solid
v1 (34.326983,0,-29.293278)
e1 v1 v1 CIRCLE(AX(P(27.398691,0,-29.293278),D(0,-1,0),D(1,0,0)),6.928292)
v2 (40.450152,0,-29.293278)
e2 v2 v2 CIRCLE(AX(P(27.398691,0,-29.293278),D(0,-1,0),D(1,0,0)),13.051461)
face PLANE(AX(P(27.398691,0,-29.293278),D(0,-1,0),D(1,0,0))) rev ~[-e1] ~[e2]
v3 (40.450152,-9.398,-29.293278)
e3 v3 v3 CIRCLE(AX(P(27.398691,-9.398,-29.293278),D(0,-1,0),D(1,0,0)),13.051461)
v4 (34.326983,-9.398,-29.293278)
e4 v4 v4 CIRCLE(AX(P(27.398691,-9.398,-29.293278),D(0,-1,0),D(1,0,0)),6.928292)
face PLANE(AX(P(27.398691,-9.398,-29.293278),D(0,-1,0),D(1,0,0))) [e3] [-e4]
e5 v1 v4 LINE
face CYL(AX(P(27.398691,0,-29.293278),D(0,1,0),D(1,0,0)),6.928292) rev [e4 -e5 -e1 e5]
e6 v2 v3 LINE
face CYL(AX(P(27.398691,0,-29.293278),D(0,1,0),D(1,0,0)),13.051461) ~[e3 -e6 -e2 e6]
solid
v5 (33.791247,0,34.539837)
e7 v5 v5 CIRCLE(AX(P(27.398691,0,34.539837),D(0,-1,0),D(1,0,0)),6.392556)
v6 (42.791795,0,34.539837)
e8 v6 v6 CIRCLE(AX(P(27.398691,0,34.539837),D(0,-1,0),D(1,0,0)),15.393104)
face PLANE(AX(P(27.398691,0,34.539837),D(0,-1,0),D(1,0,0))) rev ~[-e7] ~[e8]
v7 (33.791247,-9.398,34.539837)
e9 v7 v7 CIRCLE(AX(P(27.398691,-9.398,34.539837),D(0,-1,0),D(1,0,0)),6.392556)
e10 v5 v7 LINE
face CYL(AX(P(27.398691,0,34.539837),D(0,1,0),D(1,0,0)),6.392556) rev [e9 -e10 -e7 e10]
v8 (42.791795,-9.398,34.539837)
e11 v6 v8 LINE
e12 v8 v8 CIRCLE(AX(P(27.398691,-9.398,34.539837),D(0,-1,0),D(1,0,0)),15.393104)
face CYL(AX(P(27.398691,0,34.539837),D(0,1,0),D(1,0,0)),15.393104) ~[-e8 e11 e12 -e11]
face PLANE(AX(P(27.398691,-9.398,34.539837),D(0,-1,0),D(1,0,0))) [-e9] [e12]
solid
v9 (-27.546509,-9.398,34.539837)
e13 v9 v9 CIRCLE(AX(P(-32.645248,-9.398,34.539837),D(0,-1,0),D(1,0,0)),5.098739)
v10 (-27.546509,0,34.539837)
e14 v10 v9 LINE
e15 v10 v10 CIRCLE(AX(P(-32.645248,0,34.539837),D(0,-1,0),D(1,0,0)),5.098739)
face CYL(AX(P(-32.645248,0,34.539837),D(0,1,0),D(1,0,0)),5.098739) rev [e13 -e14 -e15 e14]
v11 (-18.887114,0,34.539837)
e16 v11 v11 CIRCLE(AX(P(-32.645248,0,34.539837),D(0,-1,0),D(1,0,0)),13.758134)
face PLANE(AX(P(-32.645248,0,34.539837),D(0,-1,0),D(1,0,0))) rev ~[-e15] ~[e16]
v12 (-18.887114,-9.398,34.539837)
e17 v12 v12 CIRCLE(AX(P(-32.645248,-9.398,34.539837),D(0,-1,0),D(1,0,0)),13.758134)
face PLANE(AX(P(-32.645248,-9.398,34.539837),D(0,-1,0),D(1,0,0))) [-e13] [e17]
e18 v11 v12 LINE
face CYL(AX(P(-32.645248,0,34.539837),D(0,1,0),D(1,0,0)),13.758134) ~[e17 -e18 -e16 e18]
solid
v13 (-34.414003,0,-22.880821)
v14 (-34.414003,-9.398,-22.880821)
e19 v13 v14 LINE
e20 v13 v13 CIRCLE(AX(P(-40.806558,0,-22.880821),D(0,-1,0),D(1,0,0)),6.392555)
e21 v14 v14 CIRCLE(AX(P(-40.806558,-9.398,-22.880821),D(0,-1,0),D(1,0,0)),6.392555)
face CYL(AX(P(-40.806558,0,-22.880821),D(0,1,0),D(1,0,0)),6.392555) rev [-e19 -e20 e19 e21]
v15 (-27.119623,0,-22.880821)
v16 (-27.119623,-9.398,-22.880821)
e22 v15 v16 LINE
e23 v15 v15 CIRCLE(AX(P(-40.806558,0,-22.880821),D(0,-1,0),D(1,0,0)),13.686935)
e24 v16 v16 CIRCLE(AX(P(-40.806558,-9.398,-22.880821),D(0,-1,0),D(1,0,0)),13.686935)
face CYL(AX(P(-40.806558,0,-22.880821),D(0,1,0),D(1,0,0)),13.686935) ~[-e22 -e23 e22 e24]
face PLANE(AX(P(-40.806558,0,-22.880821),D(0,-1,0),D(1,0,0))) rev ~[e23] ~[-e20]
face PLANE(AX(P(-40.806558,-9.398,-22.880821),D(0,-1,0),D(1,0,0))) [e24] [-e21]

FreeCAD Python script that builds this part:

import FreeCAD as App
import Part
import Sketcher
from FreeCAD import Vector
Q = App.Units.Quantity

doc = App.newDocument("Part")
body = doc.addObject("PartDesign::Body", "Body")
body.AllowCompound = True

sketch1 = body.newObject("Sketcher::SketchObject", "Sketch")
sketch1.AttachmentSupport = (doc.getObject("XZ_Plane"), [""])
sketch1.MapMode = "FlatFace"
sketch1.addGeometry(Part.Circle(Vector(-32.645248, 34.539837, 0), Vector(0, 0, 1), 13.758134), False)
sketch1.addGeometry(Part.Circle(Vector(-32.645248, 34.539837, 0), Vector(0, 0, 1), 5.098739), False)
sketch1.addGeometry(Part.Circle(Vector(27.398691, 34.539837, 0), Vector(0, 0, 1), 15.393104), False)
sketch1.addGeometry(Part.Circle(Vector(27.398691, 34.539837, 0), Vector(0, 0, 1), 6.392556), False)
sketch1.addGeometry(Part.Circle(Vector(-40.806558, -22.880821, 0), Vector(0, 0, 1), 13.686935), False)
sketch1.addGeometry(Part.Circle(Vector(-40.806558, -22.880821, 0), Vector(0, 0, 1), 6.392555), False)
sketch1.addGeometry(Part.Circle(Vector(27.398691, -29.293278, 0), Vector(0, 0, 1), 13.051461), False)
sketch1.addGeometry(Part.Circle(Vector(27.398691, -29.293278, 0), Vector(0, 0, 1), 6.928292), False)
sketch1.addConstraint(Sketcher.Constraint("Coincident", 1, 3, 0, 3))
sketch1.addConstraint(Sketcher.Constraint("Coincident", 3, 3, 2, 3))
sketch1.addConstraint(Sketcher.Constraint("Coincident", 5, 3, 4, 3))
sketch1.addConstraint(Sketcher.Constraint("Coincident", 7, 3, 6, 3))
sketch1.addConstraint(Sketcher.Constraint("Equal", 3, 5))
sketch1.addConstraint(Sketcher.Constraint("Horizontal", 1, 3, 2, 3))
sketch1.addConstraint(Sketcher.Constraint("Vertical", 3, 3, 6, 3))
sketch1.addConstraint(Sketcher.Constraint("Diameter", 0, 27.516268))
sketch1.addConstraint(Sketcher.Constraint("Diameter", 4, 27.37387))
sketch1.addConstraint(Sketcher.Constraint("Diameter", 5, 12.78511))
sketch1.addConstraint(Sketcher.Constraint("Diameter", 6, 26.102922))
sketch1.addConstraint(Sketcher.Constraint("Diameter", 1, 10.197478))
sketch1.addConstraint(Sketcher.Constraint("Diameter", 2, 30.786208))
sketch1.addConstraint(Sketcher.Constraint("Diameter", 7, 13.856584))
sketch1.addConstraint(Sketcher.Constraint("DistanceX", 0, 3, -1, 1, 32.645248))
sketch1.addConstraint(Sketcher.Constraint("DistanceX", -1, 1, 2, 3, 27.398691))
sketch1.addConstraint(Sketcher.Constraint("DistanceX", 4, 3, -1, 1, 40.806558))
sketch1.addConstraint(Sketcher.Constraint("DistanceY", 4, 3, -1, 1, 22.880821))
sketch1.addConstraint(Sketcher.Constraint("DistanceY", 6, 3, -1, 1, 29.293278))
sketch1.addConstraint(Sketcher.Constraint("DistanceY", 4, 3, 0, 3, 57.420658))
pad1 = body.newObject("PartDesign::Pad", "Pad")
pad1.Profile = sketch1
pad1.Length = Q("0.37 in")

doc.recompute()
